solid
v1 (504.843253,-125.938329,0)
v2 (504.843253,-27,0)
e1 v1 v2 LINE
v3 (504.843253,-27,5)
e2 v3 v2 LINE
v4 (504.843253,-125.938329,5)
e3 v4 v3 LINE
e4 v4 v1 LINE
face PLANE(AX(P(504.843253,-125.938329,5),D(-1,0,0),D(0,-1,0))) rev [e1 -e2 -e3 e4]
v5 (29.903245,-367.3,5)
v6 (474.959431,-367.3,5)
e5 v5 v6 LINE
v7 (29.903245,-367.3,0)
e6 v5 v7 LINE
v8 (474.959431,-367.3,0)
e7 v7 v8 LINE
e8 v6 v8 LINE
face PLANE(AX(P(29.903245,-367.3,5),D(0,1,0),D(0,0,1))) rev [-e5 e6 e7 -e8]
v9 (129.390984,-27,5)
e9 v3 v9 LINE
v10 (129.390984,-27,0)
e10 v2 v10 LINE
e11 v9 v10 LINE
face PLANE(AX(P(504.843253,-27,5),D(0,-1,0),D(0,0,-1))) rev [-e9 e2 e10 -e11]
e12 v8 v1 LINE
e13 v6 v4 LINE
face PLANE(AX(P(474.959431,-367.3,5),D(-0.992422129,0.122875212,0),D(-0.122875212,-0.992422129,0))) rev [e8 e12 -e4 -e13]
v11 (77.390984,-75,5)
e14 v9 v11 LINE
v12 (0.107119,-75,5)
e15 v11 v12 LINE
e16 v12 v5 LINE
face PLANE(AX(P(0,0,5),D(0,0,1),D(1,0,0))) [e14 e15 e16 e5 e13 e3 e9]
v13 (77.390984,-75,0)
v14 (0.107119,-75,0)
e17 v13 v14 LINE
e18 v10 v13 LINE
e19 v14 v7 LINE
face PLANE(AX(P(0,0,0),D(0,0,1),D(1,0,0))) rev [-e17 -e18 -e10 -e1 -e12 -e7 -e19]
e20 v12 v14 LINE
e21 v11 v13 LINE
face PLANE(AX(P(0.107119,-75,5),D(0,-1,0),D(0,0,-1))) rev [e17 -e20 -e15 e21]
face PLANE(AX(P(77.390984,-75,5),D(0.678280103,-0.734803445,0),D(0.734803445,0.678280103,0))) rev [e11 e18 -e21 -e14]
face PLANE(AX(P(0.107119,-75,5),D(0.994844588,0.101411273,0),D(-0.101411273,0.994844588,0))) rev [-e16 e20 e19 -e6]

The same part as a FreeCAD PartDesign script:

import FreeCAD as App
import Part
import Sketcher
from FreeCAD import Vector


def add_polygon(sketch, points):
    """Adds a closed chain of lines whose ends are joined by coincident constraints."""
    first, n = sketch.GeometryCount, len(points)
    for a, b in zip(points, points[1:] + points[:1]):
        sketch.addGeometry(Part.LineSegment(App.Vector(*a, 0), App.Vector(*b, 0)), False)
    for i in range(n):
        sketch.addConstraint(Sketcher.Constraint("Coincident", first + i, 2, first + (i + 1) % n, 1))

doc = App.newDocument("Part")
params = doc.addObject("Spreadsheet::Sheet", "Params")
for row, (alias, value) in enumerate([
    ("pad1_length", "5 mm"),
], start=1):
    params.set(f"A{row}", alias)
    params.set(f"B{row}", "=" + value)
    params.setAlias(f"B{row}", alias)

body = doc.addObject("PartDesign::Body", "Body")

sketch1 = body.newObject("Sketcher::SketchObject", "Sketch")
sketch1.AttachmentSupport = (doc.getObject("XY_Plane"), [""])
sketch1.MapMode = "FlatFace"
add_polygon(sketch1, [(0, -75), (30, -367), (475, -367), (505, -126), (505, -27), (129, -27), (77, -75)])
sketch1.addConstraint(Sketcher.Constraint("Horizontal", 1))
sketch1.addConstraint(Sketcher.Constraint("Vertical", 3))
sketch1.addConstraint(Sketcher.Constraint("Horizontal", 4))
sketch1.addConstraint(Sketcher.Constraint("Horizontal", 6))
sketch1.addConstraint(Sketcher.Constraint("DistanceY", 3, 2, -1, 1, 27.0))
sketch1.addConstraint(Sketcher.Constraint("DistanceY", 5, 2, -1, 1, 75.0))
sketch1.addConstraint(Sketcher.Constraint("DistanceX", 5, 2, 4, 2, 52.0))
sketch1.addConstraint(Sketcher.Constraint("DistanceY", 0, 2, -1, 1, 367.3))
sketch1.addConstraint(Sketcher.Constraint("DistanceX", 4, 2, 4, 1, 375.452269))
sketch1.addConstraint(Sketcher.Constraint("DistanceY", 3, 1, 3, 2, 98.938329))
sketch1.addConstraint(Sketcher.Constraint("DistanceX", 1, 1, 1, 2, 445.056185))
sketch1.addConstraint(Sketcher.Constraint("DistanceX", 6, 2, 6, 1, 77.283865))
sketch1.addConstraint(Sketcher.Constraint("DistanceX", -1, 1, 1, 2, 474.959431))
sketch1.addConstraint(Sketcher.Constraint("DistanceX", -1, 1, 6, 2, 0.107119))
pad1 = body.newObject("PartDesign::Pad", "Pad")
pad1.Profile = sketch1
pad1.setExpression("Length", "Params.pad1_length")

doc.recompute()
